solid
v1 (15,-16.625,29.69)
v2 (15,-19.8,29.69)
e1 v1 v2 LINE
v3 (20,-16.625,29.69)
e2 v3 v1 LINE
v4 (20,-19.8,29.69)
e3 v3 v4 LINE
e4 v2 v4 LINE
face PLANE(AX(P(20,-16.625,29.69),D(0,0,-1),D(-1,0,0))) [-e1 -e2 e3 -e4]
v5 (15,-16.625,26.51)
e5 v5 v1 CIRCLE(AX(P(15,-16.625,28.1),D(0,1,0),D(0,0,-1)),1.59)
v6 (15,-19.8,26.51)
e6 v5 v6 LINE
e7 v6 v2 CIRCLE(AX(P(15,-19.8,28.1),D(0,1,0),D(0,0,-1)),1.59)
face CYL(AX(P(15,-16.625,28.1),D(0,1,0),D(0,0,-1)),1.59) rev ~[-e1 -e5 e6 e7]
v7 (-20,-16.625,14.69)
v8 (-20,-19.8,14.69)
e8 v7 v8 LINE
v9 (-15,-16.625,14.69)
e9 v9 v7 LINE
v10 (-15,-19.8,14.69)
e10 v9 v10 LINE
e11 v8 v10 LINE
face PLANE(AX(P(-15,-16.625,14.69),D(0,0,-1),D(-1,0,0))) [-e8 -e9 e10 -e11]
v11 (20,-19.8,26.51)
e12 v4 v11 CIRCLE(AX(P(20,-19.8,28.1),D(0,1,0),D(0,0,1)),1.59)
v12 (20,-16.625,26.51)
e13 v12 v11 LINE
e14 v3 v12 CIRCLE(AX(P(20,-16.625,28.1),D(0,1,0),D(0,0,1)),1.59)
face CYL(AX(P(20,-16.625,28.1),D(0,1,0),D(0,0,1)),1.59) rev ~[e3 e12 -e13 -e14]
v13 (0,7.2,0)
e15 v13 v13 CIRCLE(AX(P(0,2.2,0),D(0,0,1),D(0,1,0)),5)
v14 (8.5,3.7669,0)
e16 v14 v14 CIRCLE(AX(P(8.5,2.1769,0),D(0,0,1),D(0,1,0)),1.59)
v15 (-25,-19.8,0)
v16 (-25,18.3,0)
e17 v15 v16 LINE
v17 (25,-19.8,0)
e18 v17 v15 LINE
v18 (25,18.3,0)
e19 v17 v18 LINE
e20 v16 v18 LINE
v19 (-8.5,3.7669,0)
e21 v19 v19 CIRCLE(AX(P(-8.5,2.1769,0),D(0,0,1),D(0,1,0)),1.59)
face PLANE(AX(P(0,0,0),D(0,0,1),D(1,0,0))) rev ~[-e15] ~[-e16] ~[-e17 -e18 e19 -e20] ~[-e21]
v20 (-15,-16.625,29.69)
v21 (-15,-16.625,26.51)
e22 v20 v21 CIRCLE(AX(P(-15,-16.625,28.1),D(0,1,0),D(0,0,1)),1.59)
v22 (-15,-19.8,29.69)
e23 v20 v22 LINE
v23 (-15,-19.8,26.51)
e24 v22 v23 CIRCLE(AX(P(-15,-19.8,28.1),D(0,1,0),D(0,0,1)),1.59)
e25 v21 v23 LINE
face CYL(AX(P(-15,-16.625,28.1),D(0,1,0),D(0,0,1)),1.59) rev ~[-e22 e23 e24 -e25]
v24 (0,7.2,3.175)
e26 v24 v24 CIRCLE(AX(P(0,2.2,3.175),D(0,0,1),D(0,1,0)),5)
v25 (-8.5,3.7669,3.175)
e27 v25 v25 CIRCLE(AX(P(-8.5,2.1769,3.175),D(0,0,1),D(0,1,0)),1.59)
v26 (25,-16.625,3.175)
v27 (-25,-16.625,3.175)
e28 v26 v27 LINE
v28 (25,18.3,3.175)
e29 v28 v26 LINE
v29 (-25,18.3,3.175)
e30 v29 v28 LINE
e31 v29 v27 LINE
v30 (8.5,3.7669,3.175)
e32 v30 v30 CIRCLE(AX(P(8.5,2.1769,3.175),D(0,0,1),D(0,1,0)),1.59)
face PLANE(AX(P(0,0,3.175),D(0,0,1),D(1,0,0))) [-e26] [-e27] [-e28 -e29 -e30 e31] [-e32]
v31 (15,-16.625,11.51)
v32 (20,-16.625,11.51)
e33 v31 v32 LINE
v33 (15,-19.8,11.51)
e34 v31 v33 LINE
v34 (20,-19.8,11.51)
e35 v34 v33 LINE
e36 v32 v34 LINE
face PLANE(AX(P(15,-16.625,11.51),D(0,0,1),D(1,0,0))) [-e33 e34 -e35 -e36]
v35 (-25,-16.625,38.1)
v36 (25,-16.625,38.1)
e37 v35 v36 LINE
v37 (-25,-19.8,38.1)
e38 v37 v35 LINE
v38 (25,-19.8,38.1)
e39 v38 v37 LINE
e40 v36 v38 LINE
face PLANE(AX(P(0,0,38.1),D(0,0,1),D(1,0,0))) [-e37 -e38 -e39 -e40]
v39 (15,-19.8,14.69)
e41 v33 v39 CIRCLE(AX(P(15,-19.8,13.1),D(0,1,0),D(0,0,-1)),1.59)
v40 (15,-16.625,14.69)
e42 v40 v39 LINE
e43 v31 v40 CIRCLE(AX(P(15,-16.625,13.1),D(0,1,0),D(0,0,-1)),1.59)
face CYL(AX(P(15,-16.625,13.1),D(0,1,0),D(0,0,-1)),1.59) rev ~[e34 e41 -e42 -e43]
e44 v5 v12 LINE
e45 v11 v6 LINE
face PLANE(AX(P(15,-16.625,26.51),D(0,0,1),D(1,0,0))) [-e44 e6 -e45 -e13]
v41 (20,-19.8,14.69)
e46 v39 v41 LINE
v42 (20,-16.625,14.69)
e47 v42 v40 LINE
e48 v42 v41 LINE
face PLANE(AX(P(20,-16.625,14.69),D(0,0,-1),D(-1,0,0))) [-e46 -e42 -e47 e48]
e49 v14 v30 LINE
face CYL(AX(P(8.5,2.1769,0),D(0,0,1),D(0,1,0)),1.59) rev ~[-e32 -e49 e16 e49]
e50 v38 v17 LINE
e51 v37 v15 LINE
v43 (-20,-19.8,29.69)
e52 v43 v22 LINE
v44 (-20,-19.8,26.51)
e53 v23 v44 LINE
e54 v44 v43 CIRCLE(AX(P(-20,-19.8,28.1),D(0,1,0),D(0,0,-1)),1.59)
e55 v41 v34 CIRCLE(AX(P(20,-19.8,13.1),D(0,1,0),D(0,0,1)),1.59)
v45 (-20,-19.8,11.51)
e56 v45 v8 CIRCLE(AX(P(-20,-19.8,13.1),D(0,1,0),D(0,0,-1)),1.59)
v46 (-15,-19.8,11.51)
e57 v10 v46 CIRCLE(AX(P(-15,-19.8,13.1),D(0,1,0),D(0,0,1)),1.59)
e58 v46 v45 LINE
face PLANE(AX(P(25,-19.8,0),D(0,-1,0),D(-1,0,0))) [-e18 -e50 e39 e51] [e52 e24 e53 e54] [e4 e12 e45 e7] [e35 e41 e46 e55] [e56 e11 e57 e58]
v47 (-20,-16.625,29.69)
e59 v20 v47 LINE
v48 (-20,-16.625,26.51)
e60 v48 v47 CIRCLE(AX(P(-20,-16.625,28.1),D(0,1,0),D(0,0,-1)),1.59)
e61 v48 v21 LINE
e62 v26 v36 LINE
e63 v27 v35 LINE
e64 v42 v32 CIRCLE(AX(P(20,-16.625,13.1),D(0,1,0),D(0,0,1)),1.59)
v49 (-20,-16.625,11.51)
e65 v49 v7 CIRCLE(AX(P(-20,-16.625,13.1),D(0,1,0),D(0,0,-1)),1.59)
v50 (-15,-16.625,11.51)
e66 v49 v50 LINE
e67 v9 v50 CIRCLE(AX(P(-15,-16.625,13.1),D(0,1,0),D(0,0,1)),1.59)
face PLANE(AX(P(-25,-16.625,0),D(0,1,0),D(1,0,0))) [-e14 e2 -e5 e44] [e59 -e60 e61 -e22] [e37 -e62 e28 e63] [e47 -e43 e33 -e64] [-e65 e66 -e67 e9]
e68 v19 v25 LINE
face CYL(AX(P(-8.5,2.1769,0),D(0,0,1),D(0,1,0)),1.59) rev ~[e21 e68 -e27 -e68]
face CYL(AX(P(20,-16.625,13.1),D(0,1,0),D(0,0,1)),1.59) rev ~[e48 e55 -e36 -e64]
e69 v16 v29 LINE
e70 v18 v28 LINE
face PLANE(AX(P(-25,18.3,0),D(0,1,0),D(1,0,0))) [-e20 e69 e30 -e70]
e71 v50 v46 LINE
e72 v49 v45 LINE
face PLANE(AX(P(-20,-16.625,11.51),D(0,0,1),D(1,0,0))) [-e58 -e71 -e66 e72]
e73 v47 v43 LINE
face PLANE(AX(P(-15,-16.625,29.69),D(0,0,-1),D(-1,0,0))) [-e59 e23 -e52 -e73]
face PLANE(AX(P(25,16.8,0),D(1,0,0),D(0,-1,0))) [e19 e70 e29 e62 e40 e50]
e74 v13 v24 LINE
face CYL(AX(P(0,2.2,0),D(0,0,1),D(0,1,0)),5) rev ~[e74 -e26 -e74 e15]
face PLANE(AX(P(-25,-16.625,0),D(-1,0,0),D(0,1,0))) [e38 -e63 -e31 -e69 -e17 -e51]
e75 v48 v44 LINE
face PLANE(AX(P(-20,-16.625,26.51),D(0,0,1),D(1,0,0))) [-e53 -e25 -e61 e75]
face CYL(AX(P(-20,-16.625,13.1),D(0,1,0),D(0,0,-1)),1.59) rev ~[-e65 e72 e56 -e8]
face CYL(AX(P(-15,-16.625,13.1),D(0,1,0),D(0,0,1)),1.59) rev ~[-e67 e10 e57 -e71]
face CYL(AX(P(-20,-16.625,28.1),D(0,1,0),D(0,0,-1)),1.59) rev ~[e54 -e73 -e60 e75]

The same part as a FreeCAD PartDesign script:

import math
import FreeCAD as App
import Part
import Sketcher
Q = App.Units.Quantity

doc = App.newDocument("Part")
body = doc.addObject("PartDesign::Body", "Body")

# Sketch on XY plane
sketch1 = body.newObject("Sketcher::SketchObject", "Sketch")
sketch1.AttachmentSupport = (doc.getObject("XY_Plane"), [""])
sketch1.MapMode = "FlatFace"
sketch1.addGeometry(Part.LineSegment(App.Vector(25, 18.3, 0), App.Vector(-25, 18.3, 0)), False)
sketch1.addGeometry(Part.LineSegment(App.Vector(-25, 18.3, 0), App.Vector(-25, -19.8, 0)), False)
sketch1.addGeometry(Part.LineSegment(App.Vector(-25, -19.8, 0), App.Vector(25, -19.8, 0)), False)
sketch1.addGeometry(Part.LineSegment(App.Vector(25, -19.8, 0), App.Vector(25, 18.3, 0)), False)
sketch1.addConstraint(Sketcher.Constraint("Coincident", 0, 2, 1, 1))
sketch1.addConstraint(Sketcher.Constraint("Coincident", 1, 2, 2, 1))
sketch1.addConstraint(Sketcher.Constraint("Coincident", 2, 2, 3, 1))
sketch1.addConstraint(Sketcher.Constraint("Coincident", 3, 2, 0, 1))
sketch1.addConstraint(Sketcher.Constraint("Horizontal", 0))
sketch1.addConstraint(Sketcher.Constraint("Vertical", 1))
sketch1.addConstraint(Sketcher.Constraint("Horizontal", 2))
sketch1.addConstraint(Sketcher.Constraint("Vertical", 3))
sketch1.addConstraint(Sketcher.Constraint("DistanceY", 1, 2, 1, 1, Q("1.5 in")))
sketch1.addConstraint(Sketcher.Constraint("DistanceX", 0, 2, 0, 1, Q("1.9685 in")))
sketch1.addConstraint(Sketcher.Constraint("DistanceX", 0, 2, -1, 1, 25.0))
sketch1.addConstraint(Sketcher.Constraint("DistanceY", -1, 1, 0, 2, 18.3))
pad1 = body.newObject("PartDesign::Pad", "Pad")
pad1.Profile = sketch1
pad1.Length = Q("0.125 in")

# Sketch on XY plane
sketch2 = body.newObject("Sketcher::SketchObject", "Sketch001")
sketch2.AttachmentSupport = (doc.getObject("XY_Plane"), [""])
sketch2.MapMode = "FlatFace"
sketch2.addGeometry(Part.LineSegment(App.Vector(25, -19.8, 0), App.Vector(25, -16.625, 0)), False)
sketch2.addGeometry(Part.LineSegment(App.Vector(25, -16.625, 0), App.Vector(-25, -16.625, 0)), False)
sketch2.addGeometry(Part.LineSegment(App.Vector(-25, -16.625, 0), App.Vector(-25, -19.8, 0)), False)
sketch2.addGeometry(Part.LineSegment(App.Vector(-25, -19.8, 0), App.Vector(25, -19.8, 0)), False)
sketch2.addConstraint(Sketcher.Constraint("Coincident", 0, 2, 1, 1))
sketch2.addConstraint(Sketcher.Constraint("Coincident", 1, 2, 2, 1))
sketch2.addConstraint(Sketcher.Constraint("Coincident", 2, 2, 3, 1))
sketch2.addConstraint(Sketcher.Constraint("Coincident", 3, 2, 0, 1))
sketch2.addConstraint(Sketcher.Constraint("Vertical", 0))
sketch2.addConstraint(Sketcher.Constraint("Horizontal", 1))
sketch2.addConstraint(Sketcher.Constraint("Vertical", 2))
sketch2.addConstraint(Sketcher.Constraint("Horizontal", 3))
sketch2.addConstraint(Sketcher.Constraint("DistanceY", 0, 1, 0, 2, Q("0.125 in")))
sketch2.addConstraint(Sketcher.Constraint("DistanceX", 1, 2, 1, 1, Q("1.9685 in")))
sketch2.addConstraint(Sketcher.Constraint("DistanceX", -1, 1, 0, 2, 25.0))
sketch2.addConstraint(Sketcher.Constraint("DistanceY", 0, 2, -1, 1, 16.625))
pad2 = body.newObject("PartDesign::Pad", "Pad001")
pad2.Profile = sketch2
pad2.Length = Q("1.5 in")

# Sketch on XY plane
sketch3 = body.newObject("Sketcher::SketchObject", "Sketch002")
sketch3.AttachmentSupport = (doc.getObject("XY_Plane"), [""])
sketch3.MapMode = "FlatFace"
sketch3.addGeometry(Part.Circle(App.Vector(0, 2.2, 0), App.Vector(0, 0, 1), 5), False)
sketch3.addConstraint(Sketcher.Constraint("PointOnObject", 0, 3, -2))
sketch3.addConstraint(Sketcher.Constraint("Diameter", 0, Q("0.3937 in")))
sketch3.addConstraint(Sketcher.Constraint("DistanceY", -1, 1, 0, 3, 2.2))
doc.recompute()
hole = body.newObject("PartDesign::Hole", "Hole")
hole.Profile = sketch3
hole.ThreadType = "None"
hole.Diameter = Q("0.3937008 in")
hole.DepthType = "ThroughAll"
hole.Reversed = True

# Sketch on XY plane
sketch4 = body.newObject("Sketcher::SketchObject", "Sketch003")
sketch4.AttachmentSupport = (doc.getObject("XY_Plane"), [""])
sketch4.MapMode = "FlatFace"
sketch4.addGeometry(Part.Circle(App.Vector(8.5, 2.1769, 0), App.Vector(0, 0, 1), 1.59), False)
sketch4.addGeometry(Part.Circle(App.Vector(-8.5, 2.1769, 0), App.Vector(0, 0, 1), 1.59), False)
sketch4.addConstraint(Sketcher.Constraint("Equal", 0, 1))
sketch4.addConstraint(Sketcher.Constraint("Symmetric", 0, 3, 1, 3, -2))
sketch4.addConstraint(Sketcher.Constraint("Diameter", 0, Q("0.1252 in")))
sketch4.addConstraint(Sketcher.Constraint("DistanceY", -1, 1, 0, 3, Q("0.0857 in")))
sketch4.addConstraint(Sketcher.Constraint("DistanceX", 1, 3, 0, 3, Q("0.6693 in")))
doc.recompute()
hole2 = body.newObject("PartDesign::Hole", "Hole001")
hole2.Profile = sketch4
hole2.ThreadType = "None"
hole2.Diameter = Q("0.1251969 in")
hole2.DepthType = "ThroughAll"
hole2.Reversed = True

# Sketch on XZ plane
sketch5 = body.newObject("Sketcher::SketchObject", "Sketch004")
sketch5.AttachmentSupport = (doc.getObject("XZ_Plane"), [""])
sketch5.MapMode = "FlatFace"
sketch5.AttachmentOffset = App.Placement(App.Vector(0, 0, 16.625), App.Rotation())
sketch5.addGeometry(Part.LineSegment(App.Vector(15, 29.69, 0), App.Vector(20, 29.69, 0)), False)
sketch5.addGeometry(Part.ArcOfCircle(Part.Circle(App.Vector(20, 28.1, 0), App.Vector(0, 0, 1), 1.59), math.radians(-90), math.radians(90)), False)
sketch5.addGeometry(Part.LineSegment(App.Vector(20, 26.51, 0), App.Vector(15, 26.51, 0)), False)
sketch5.addGeometry(Part.ArcOfCircle(Part.Circle(App.Vector(15, 28.1, 0), App.Vector(0, 0, 1), 1.59), math.radians(90), math.radians(270)), False)
sketch5.addGeometry(Part.LineSegment(App.Vector(15, 14.69, 0), App.Vector(20, 14.69, 0)), False)
sketch5.addGeometry(Part.ArcOfCircle(Part.Circle(App.Vector(20, 13.1, 0), App.Vector(0, 0, 1), 1.59), math.radians(-90), math.radians(90)), False)
sketch5.addGeometry(Part.LineSegment(App.Vector(20, 11.51, 0), App.Vector(15, 11.51, 0)), False)
sketch5.addGeometry(Part.ArcOfCircle(Part.Circle(App.Vector(15, 13.1, 0), App.Vector(0, 0, 1), 1.59), math.radians(90), math.radians(270)), False)
sketch5.addGeometry(Part.LineSegment(App.Vector(-20, 29.69, 0), App.Vector(-15, 29.69, 0)), False)
sketch5.addGeometry(Part.ArcOfCircle(Part.Circle(App.Vector(-15, 28.1, 0), App.Vector(0, 0, 1), 1.59), math.radians(-90), math.radians(90)), False)
sketch5.addGeometry(Part.LineSegment(App.Vector(-15, 26.51, 0), App.Vector(-20, 26.51, 0)), False)
sketch5.addGeometry(Part.ArcOfCircle(Part.Circle(App.Vector(-20, 28.1, 0), App.Vector(0, 0, 1), 1.59), math.radians(90), math.radians(270)), False)
sketch5.addGeometry(Part.LineSegment(App.Vector(-20, 14.69, 0), App.Vector(-15, 14.69, 0)), False)
sketch5.addGeometry(Part.ArcOfCircle(Part.Circle(App.Vector(-15, 13.1, 0), App.Vector(0, 0, 1), 1.59), math.radians(-90), math.radians(90)), False)
sketch5.addGeometry(Part.LineSegment(App.Vector(-15, 11.51, 0), App.Vector(-20, 11.51, 0)), False)
sketch5.addGeometry(Part.ArcOfCircle(Part.Circle(App.Vector(-20, 13.1, 0), App.Vector(0, 0, 1), 1.59), math.radians(90), math.radians(270)), False)
sketch5.addConstraint(Sketcher.Constraint("Tangent", 0, 2, 1, 2))
sketch5.addConstraint(Sketcher.Constraint("Tangent", 1, 1, 2, 1))
sketch5.addConstraint(Sketcher.Constraint("Tangent", 2, 2, 3, 2))
sketch5.addConstraint(Sketcher.Constraint("Tangent", 3, 1, 0, 1))
sketch5.addConstraint(Sketcher.Constraint("Tangent", 4, 2, 5, 2))
sketch5.addConstraint(Sketcher.Constraint("Tangent", 5, 1, 6, 1))
sketch5.addConstraint(Sketcher.Constraint("Tangent", 6, 2, 7, 2))
sketch5.addConstraint(Sketcher.Constraint("Tangent", 7, 1, 4, 1))
sketch5.addConstraint(Sketcher.Constraint("Tangent", 8, 2, 9, 2))
sketch5.addConstraint(Sketcher.Constraint("Tangent", 9, 1, 10, 1))
sketch5.addConstraint(Sketcher.Constraint("Tangent", 10, 2, 11, 2))
sketch5.addConstraint(Sketcher.Constraint("Tangent", 11, 1, 8, 1))
sketch5.addConstraint(Sketcher.Constraint("Tangent", 12, 2, 13, 2))
sketch5.addConstraint(Sketcher.Constraint("Tangent", 13, 1, 14, 1))
sketch5.addConstraint(Sketcher.Constraint("Tangent", 14, 2, 15, 2))
sketch5.addConstraint(Sketcher.Constraint("Tangent", 15, 1, 12, 1))
sketch5.addConstraint(Sketcher.Constraint("Horizontal", 0))
sketch5.addConstraint(Sketcher.Constraint("Horizontal", 2))
sketch5.addConstraint(Sketcher.Constraint("Horizontal", 4))
sketch5.addConstraint(Sketcher.Constraint("Horizontal", 6))
sketch5.addConstraint(Sketcher.Constraint("Horizontal", 8))
sketch5.addConstraint(Sketcher.Constraint("Horizontal", 10))
sketch5.addConstraint(Sketcher.Constraint("Horizontal", 12))
sketch5.addConstraint(Sketcher.Constraint("Horizontal", 14))
sketch5.addConstraint(Sketcher.Constraint("Equal", 3, 5))
sketch5.addConstraint(Sketcher.Constraint("Equal", 7, 9))
sketch5.addConstraint(Sketcher.Constraint("Equal", 11, 13))
sketch5.addConstraint(Sketcher.Constraint("Symmetric", 3, 3, 9, 3, -2))
sketch5.addConstraint(Sketcher.Constraint("Symmetric", 7, 3, 13, 3, -2))
sketch5.addConstraint(Sketcher.Constraint("Vertical", 1, 3, 5, 3))
sketch5.addConstraint(Sketcher.Constraint("Vertical", 3, 3, 7, 3))
sketch5.addConstraint(Sketcher.Constraint("Vertical", 11, 3, 15, 3))
sketch5.addConstraint(Sketcher.Constraint("Equal", 6, 8))
sketch5.addConstraint(Sketcher.Constraint("Radius", 1, Q("0.0626 in")))
sketch5.addConstraint(Sketcher.Constraint("DistanceX", 0, 1, 0, 2, 5.0))
sketch5.addConstraint(Sketcher.Constraint("DistanceX", -1, 1, 1, 3, Q("0.7874 in")))
sketch5.addConstraint(Sketcher.Constraint("DistanceY", -1, 1, 1, 3, Q("1.1063 in")))
sketch5.addConstraint(Sketcher.Constraint("DistanceY", -1, 1, 5, 3, 13.1))
pocket1 = body.newObject("PartDesign::Pocket", "Pocket")
pocket1.Profile = sketch5
pocket1.Length = Q("0.3937008 in")
pocket1.Reversed = True

doc.recompute()
